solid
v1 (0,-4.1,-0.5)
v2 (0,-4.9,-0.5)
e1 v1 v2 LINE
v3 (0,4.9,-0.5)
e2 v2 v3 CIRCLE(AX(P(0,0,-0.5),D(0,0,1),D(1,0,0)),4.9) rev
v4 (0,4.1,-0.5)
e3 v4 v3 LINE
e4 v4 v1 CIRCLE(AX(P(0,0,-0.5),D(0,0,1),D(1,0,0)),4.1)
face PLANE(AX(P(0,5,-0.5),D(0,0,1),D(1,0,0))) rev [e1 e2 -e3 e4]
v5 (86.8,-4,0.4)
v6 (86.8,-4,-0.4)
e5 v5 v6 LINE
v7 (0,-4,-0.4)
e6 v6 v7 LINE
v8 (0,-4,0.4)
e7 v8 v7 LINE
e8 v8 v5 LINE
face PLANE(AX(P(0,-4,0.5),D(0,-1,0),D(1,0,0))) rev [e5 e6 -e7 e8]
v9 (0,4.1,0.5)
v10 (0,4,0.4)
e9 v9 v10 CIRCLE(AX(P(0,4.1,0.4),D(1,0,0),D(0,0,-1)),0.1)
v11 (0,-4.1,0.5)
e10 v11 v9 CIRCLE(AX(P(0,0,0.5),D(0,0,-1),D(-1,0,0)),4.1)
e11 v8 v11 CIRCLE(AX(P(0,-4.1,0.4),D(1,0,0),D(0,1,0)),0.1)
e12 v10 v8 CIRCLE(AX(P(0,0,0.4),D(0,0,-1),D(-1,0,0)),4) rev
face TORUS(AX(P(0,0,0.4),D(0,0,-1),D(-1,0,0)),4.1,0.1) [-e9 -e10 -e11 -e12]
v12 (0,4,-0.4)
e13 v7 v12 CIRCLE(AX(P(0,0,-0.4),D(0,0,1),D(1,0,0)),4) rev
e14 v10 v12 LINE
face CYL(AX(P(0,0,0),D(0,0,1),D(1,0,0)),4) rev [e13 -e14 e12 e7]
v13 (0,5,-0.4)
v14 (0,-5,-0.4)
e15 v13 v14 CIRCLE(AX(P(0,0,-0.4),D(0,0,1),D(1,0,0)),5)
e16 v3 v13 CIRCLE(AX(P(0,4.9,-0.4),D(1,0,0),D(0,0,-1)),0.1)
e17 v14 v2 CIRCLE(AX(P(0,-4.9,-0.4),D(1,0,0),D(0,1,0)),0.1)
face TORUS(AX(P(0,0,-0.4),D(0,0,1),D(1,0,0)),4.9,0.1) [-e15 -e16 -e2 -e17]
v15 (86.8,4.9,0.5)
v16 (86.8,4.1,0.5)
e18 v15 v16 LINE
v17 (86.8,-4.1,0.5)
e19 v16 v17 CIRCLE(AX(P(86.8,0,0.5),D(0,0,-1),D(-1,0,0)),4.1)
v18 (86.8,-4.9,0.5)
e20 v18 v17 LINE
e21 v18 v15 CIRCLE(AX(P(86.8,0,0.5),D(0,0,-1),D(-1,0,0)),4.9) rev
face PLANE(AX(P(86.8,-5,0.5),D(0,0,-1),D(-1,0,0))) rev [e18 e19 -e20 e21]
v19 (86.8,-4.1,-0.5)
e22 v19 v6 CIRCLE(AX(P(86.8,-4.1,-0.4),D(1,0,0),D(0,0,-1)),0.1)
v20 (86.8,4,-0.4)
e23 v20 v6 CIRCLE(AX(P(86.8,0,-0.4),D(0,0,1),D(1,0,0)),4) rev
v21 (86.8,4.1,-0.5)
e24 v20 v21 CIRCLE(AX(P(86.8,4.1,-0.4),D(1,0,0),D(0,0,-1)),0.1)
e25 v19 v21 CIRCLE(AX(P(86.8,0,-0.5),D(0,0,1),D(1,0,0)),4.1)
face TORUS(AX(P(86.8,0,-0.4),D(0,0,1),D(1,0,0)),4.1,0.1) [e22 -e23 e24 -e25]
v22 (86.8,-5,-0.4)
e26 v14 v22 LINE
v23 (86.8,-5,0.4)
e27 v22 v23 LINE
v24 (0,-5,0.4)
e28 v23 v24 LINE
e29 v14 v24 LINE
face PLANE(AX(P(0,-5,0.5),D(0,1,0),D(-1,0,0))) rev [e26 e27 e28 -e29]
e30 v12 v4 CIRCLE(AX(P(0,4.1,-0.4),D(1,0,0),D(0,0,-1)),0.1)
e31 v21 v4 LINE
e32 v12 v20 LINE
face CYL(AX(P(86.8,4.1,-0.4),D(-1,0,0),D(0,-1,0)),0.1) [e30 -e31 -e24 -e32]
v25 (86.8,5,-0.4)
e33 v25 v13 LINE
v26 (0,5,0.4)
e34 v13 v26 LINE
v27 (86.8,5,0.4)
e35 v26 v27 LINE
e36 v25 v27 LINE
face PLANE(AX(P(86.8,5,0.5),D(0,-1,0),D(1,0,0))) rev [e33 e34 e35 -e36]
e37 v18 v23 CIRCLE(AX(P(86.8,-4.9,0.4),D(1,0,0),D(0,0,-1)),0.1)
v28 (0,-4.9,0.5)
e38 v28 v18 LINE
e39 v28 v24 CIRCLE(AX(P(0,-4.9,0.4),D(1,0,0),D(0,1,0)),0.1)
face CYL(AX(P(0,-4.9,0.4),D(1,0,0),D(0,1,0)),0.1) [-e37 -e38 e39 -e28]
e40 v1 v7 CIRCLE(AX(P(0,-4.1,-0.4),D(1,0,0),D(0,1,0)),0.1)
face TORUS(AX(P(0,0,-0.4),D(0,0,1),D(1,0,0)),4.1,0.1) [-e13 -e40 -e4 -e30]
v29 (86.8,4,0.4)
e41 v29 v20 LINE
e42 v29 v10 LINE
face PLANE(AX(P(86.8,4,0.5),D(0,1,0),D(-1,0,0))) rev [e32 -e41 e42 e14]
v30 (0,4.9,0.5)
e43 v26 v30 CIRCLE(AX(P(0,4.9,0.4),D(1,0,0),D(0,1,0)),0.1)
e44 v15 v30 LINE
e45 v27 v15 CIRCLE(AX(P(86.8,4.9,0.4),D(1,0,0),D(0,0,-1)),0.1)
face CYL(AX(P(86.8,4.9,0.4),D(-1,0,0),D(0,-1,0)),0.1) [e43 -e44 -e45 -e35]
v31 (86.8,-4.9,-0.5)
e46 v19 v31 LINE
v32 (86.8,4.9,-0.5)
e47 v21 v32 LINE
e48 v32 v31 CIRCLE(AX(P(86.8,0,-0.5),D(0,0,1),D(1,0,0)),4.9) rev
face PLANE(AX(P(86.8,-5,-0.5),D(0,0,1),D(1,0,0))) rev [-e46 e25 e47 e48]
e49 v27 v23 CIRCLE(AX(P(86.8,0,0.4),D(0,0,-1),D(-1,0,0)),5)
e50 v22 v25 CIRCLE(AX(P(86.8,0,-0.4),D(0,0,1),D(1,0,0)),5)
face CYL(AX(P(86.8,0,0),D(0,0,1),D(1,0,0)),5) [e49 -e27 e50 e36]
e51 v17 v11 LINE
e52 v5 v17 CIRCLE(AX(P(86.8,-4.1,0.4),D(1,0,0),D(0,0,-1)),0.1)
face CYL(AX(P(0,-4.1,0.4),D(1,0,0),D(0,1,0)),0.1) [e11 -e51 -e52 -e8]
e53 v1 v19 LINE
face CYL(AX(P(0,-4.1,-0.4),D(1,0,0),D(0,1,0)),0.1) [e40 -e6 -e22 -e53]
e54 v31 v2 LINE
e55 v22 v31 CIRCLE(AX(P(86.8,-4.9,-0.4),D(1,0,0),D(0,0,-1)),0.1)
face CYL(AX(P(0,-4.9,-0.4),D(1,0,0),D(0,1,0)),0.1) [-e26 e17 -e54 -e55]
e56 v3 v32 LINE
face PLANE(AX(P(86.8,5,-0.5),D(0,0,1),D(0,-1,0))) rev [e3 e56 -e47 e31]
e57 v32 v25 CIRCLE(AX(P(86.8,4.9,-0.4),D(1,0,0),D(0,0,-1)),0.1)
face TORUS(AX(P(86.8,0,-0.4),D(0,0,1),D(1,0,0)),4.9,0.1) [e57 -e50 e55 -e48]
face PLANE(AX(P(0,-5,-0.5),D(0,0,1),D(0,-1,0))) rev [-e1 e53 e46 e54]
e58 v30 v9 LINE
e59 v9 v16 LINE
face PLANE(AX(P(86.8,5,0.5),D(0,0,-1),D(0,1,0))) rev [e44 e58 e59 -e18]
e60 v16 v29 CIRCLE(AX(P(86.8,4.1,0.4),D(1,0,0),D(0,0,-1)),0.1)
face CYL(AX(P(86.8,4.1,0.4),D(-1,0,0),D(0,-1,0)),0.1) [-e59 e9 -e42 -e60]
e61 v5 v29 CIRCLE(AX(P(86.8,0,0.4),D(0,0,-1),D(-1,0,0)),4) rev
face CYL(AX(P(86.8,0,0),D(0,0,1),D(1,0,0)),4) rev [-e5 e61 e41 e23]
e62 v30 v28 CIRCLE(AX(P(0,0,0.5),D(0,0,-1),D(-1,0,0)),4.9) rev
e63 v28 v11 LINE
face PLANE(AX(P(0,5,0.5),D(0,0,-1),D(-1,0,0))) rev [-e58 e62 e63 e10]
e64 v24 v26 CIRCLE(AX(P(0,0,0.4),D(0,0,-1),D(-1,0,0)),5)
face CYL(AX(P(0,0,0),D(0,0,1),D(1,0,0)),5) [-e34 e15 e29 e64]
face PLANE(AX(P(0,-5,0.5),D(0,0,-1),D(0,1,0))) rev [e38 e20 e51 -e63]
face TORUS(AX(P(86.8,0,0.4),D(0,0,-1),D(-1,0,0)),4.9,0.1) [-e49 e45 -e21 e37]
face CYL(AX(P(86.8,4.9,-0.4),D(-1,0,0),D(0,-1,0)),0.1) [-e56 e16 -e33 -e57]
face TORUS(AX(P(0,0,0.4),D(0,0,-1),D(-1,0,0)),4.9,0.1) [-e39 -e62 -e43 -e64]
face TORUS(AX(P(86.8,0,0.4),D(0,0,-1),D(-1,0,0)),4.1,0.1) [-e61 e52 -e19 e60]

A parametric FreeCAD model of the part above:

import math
import FreeCAD as App
import Part
import Sketcher
from FreeCAD import Vector


def edges_at(feature, points):
    """Names of the edges that pass closest to the given points."""
    edges = feature.Shape.Edges
    near = lambda p: min(range(len(edges)), key=lambda i: edges[i].distToShape(Part.Vertex(*p))[0])
    return sorted({f"Edge{near(p) + 1}" for p in points})

doc = App.newDocument("Part")
body = doc.addObject("PartDesign::Body", "Body")

sketch1 = body.newObject("Sketcher::SketchObject", "Sketch")
sketch1.AttachmentSupport = (doc.getObject("YZ_Plane"), [""])
sketch1.MapMode = "FlatFace"
sketch1.addGeometry(Part.LineSegment(Vector(5, 0.5, 0), Vector(4, 0.5, 0)), False)
sketch1.addGeometry(Part.LineSegment(Vector(4, 0.5, 0), Vector(4, -0.5, 0)), False)
sketch1.addGeometry(Part.LineSegment(Vector(4, -0.5, 0), Vector(5, -0.5, 0)), False)
sketch1.addGeometry(Part.LineSegment(Vector(5, -0.5, 0), Vector(5, 0.5, 0)), False)
sketch1.addConstraint(Sketcher.Constraint("Coincident", 0, 2, 1, 1))
sketch1.addConstraint(Sketcher.Constraint("Coincident", 1, 2, 2, 1))
sketch1.addConstraint(Sketcher.Constraint("Coincident", 2, 2, 3, 1))
sketch1.addConstraint(Sketcher.Constraint("Coincident", 3, 2, 0, 1))
sketch1.addConstraint(Sketcher.Constraint("Horizontal", 0))
sketch1.addConstraint(Sketcher.Constraint("Vertical", 1))
sketch1.addConstraint(Sketcher.Constraint("Horizontal", 2))
sketch1.addConstraint(Sketcher.Constraint("Vertical", 3))
sketch1.addConstraint(Sketcher.Constraint("Equal", 2, 1))
sketch1.addConstraint(Sketcher.Constraint("DistanceX", 0, 2, 0, 1, 1.0))
sketch1.addConstraint(Sketcher.Constraint("DistanceX", -1, 1, 0, 2, 4.0))
sketch1.addConstraint(Sketcher.Constraint("DistanceY", -1, 1, 0, 2, 0.5))

sketch2 = body.newObject("Sketcher::SketchObject", "Sketch001")
sketch2.AttachmentSupport = (doc.getObject("XY_Plane"), [""])
sketch2.MapMode = "FlatFace"
sketch2.addGeometry(Part.LineSegment(Vector(0, 4.5, 0), Vector(86.8, 4.5, 0)), False)
sketch2.addGeometry(Part.ArcOfCircle(Part.Circle(Vector(86.8, 0, 0), Vector(0, 0, 1), 4.5), math.radians(-90), math.radians(90)), False)
sketch2.addGeometry(Part.LineSegment(Vector(86.8, -4.5, 0), Vector(0, -4.5, 0)), False)
sketch2.addGeometry(Part.ArcOfCircle(Part.Circle(Vector(0, 0, 0), Vector(0, 0, 1), 4.5), math.radians(90), math.radians(270)), False)
sketch2.addConstraint(Sketcher.Constraint("Tangent", 0, 2, 1, 2))
sketch2.addConstraint(Sketcher.Constraint("Tangent", 1, 1, 2, 1))
sketch2.addConstraint(Sketcher.Constraint("Tangent", 2, 2, 3, 2))
sketch2.addConstraint(Sketcher.Constraint("Tangent", 3, 1, 0, 1))
sketch2.addConstraint(Sketcher.Constraint("Horizontal", 0))
sketch2.addConstraint(Sketcher.Constraint("Horizontal", 2))
sketch2.addConstraint(Sketcher.Constraint("Coincident", 3, 3, -1, 1))
sketch2.addConstraint(Sketcher.Constraint("Radius", 1, 4.5))
sketch2.addConstraint(Sketcher.Constraint("DistanceX", 0, 1, 0, 2, 86.8))
doc.recompute()

additivepipe = body.newObject("PartDesign::AdditivePipe", "AdditivePipe")
additivepipe.Profile = sketch1
additivepipe.Spine = (sketch2, ["Edge1", "Edge2", "Edge3", "Edge4"])
doc.recompute()

fillet = body.newObject("PartDesign::Fillet", "Fillet")
fillet.Base = (additivepipe, edges_at(additivepipe, [
    (-5, 0, 0.5),
    (-4, 0, 0.5),
    (-4, 0, -0.5),
    (-5, 0, -0.5),
    (43.4, -5, 0.5),
    (43.4, -4, 0.5),
    (43.4, -4, -0.5),
    (43.4, -5, -0.5),
    (91.8, 0, 0.5),
    (90.8, 0, 0.5),
    (90.8, 0, -0.5),
    (91.8, 0, -0.5),
    (43.4, 5, 0.5),
    (43.4, 4, 0.5),
    (43.4, 4, -0.5),
    (43.4, 5, -0.5),
]))
fillet.Radius = 0.1

doc.recompute()
